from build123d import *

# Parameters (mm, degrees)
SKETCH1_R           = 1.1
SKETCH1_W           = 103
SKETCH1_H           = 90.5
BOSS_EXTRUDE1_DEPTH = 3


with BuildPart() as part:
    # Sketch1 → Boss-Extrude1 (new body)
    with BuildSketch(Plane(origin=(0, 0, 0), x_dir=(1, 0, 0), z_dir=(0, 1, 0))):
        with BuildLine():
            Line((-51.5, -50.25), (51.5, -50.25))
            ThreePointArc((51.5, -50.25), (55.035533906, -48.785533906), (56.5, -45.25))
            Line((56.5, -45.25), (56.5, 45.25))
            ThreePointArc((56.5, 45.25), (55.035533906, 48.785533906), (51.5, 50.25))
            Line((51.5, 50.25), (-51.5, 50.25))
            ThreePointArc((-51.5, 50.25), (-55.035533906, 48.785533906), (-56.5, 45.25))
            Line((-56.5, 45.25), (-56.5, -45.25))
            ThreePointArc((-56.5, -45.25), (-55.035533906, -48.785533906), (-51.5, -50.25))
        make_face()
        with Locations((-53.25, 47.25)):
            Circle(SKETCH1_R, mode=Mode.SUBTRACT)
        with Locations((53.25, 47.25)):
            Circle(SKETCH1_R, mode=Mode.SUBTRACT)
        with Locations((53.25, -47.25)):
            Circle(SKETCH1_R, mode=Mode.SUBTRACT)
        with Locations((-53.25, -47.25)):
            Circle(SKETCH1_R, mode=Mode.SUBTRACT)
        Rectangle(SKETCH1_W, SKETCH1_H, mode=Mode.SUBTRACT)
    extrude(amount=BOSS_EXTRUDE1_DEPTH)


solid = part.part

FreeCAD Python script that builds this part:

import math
import FreeCAD as App
import Part
import Sketcher
Q = App.Units.Quantity


def add_polygon(sketch, points):
    """Adds a closed chain of lines whose ends are joined by coincident constraints."""
    first, n = sketch.GeometryCount, len(points)
    for a, b in zip(points, points[1:] + points[:1]):
        sketch.addGeometry(Part.LineSegment(App.Vector(*a, 0), App.Vector(*b, 0)), False)
    for i in range(n):
        sketch.addConstraint(Sketcher.Constraint("Coincident", first + i, 2, first + (i + 1) % n, 1))

doc = App.newDocument("Part")
body = doc.addObject("PartDesign::Body", "Body")

sketch1 = body.newObject("Sketcher::SketchObject", "Sketch")
sketch1.AttachmentSupport = (doc.getObject("XZ_Plane"), [""])
sketch1.MapMode = "FlatFace"
sketch1.addGeometry(Part.LineSegment(App.Vector(-51.5, 50.25, 0), App.Vector(51.5, 50.25, 0)), False)
sketch1.addGeometry(Part.ArcOfCircle(Part.Circle(App.Vector(51.5, 45.25, 0), App.Vector(0, 0, 1), 5), math.radians(0), math.radians(90)), False)
sketch1.addGeometry(Part.LineSegment(App.Vector(56.5, 45.25, 0), App.Vector(56.5, -45.25, 0)), False)
sketch1.addGeometry(Part.ArcOfCircle(Part.Circle(App.Vector(51.5, -45.25, 0), App.Vector(0, 0, 1), 5), math.radians(-90), math.radians(0)), False)
sketch1.addGeometry(Part.LineSegment(App.Vector(51.5, -50.25, 0), App.Vector(-51.5, -50.25, 0)), False)
sketch1.addGeometry(Part.ArcOfCircle(Part.Circle(App.Vector(-51.5, -45.25, 0), App.Vector(0, 0, 1), 5), math.radians(180), math.radians(270)), False)
sketch1.addGeometry(Part.LineSegment(App.Vector(-56.5, -45.25, 0), App.Vector(-56.5, 45.25, 0)), False)
sketch1.addGeometry(Part.ArcOfCircle(Part.Circle(App.Vector(-51.5, 45.25, 0), App.Vector(0, 0, 1), 5), math.radians(90), math.radians(180)), False)
sketch1.addGeometry(Part.Circle(App.Vector(-53.25, 47.25, 0), App.Vector(0, 0, 1), 1.1), False)
sketch1.addGeometry(Part.Circle(App.Vector(53.25, 47.25, 0), App.Vector(0, 0, 1), 1.1), False)
sketch1.addGeometry(Part.Circle(App.Vector(-53.25, -47.25, 0), App.Vector(0, 0, 1), 1.1), False)
add_polygon(sketch1, [(51.5, 45.25), (-51.5, 45.25), (-51.5, -45.25), (51.5, -45.25)])
sketch1.addGeometry(Part.Circle(App.Vector(53.25, -47.25, 0), App.Vector(0, 0, 1), 1.1), False)
sketch1.addConstraint(Sketcher.Constraint("Tangent", 0, 2, 1, 2))
sketch1.addConstraint(Sketcher.Constraint("Tangent", 1, 1, 2, 1))
sketch1.addConstraint(Sketcher.Constraint("Tangent", 2, 2, 3, 2))
sketch1.addConstraint(Sketcher.Constraint("Tangent", 3, 1, 4, 1))
sketch1.addConstraint(Sketcher.Constraint("Tangent", 4, 2, 5, 2))
sketch1.addConstraint(Sketcher.Constraint("Tangent", 5, 1, 6, 1))
sketch1.addConstraint(Sketcher.Constraint("Tangent", 6, 2, 7, 2))
sketch1.addConstraint(Sketcher.Constraint("Tangent", 7, 1, 0, 1))
sketch1.addConstraint(Sketcher.Constraint("Horizontal", 0))
sketch1.addConstraint(Sketcher.Constraint("Vertical", 2))
sketch1.addConstraint(Sketcher.Constraint("Horizontal", 4))
sketch1.addConstraint(Sketcher.Constraint("Vertical", 6))
sketch1.addConstraint(Sketcher.Constraint("Horizontal", 11))
sketch1.addConstraint(Sketcher.Constraint("Vertical", 12))
sketch1.addConstraint(Sketcher.Constraint("Horizontal", 13))
sketch1.addConstraint(Sketcher.Constraint("Vertical", 14))
sketch1.addConstraint(Sketcher.Constraint("Coincident", 11, 2, 7, 3))
sketch1.addConstraint(Sketcher.Constraint("Coincident", 12, 2, 5, 3))
sketch1.addConstraint(Sketcher.Constraint("Coincident", 13, 2, 3, 3))
sketch1.addConstraint(Sketcher.Constraint("Equal", 1, 3))
sketch1.addConstraint(Sketcher.Constraint("Equal", 8, 9))
sketch1.addConstraint(Sketcher.Constraint("Equal", 9, 10))
sketch1.addConstraint(Sketcher.Constraint("Equal", 10, 15))
sketch1.addConstraint(Sketcher.Constraint("Symmetric", 1, 3, 5, 3, -1, 1))
sketch1.addConstraint(Sketcher.Constraint("Symmetric", 9, 3, 10, 3, -1, 1))
sketch1.addConstraint(Sketcher.Constraint("Symmetric", 8, 3, 15, 3, -1, 1))
sketch1.addConstraint(Sketcher.Constraint("Symmetric", 8, 3, 9, 3, -2))
sketch1.addConstraint(Sketcher.Constraint("Radius", 1, Q("5 mm")))
sketch1.addConstraint(Sketcher.Constraint("Diameter", 8, Q("2.2 mm")))
sketch1.addConstraint(Sketcher.Constraint("DistanceX", 0, 1, 0, 2, Q("103 mm")))
sketch1.addConstraint(Sketcher.Constraint("DistanceY", 2, 2, 2, 1, Q("90.5 mm")))
sketch1.addConstraint(Sketcher.Constraint("DistanceY", 7, 3, 8, 3, Q("2 mm")))
sketch1.addConstraint(Sketcher.Constraint("DistanceX", 8, 3, 9, 3, Q("106.5 mm")))
pad1 = body.newObject("PartDesign::Pad", "Pad")
pad1.Profile = sketch1
pad1.Length = 3
pad1.Reversed = True

doc.recompute()
